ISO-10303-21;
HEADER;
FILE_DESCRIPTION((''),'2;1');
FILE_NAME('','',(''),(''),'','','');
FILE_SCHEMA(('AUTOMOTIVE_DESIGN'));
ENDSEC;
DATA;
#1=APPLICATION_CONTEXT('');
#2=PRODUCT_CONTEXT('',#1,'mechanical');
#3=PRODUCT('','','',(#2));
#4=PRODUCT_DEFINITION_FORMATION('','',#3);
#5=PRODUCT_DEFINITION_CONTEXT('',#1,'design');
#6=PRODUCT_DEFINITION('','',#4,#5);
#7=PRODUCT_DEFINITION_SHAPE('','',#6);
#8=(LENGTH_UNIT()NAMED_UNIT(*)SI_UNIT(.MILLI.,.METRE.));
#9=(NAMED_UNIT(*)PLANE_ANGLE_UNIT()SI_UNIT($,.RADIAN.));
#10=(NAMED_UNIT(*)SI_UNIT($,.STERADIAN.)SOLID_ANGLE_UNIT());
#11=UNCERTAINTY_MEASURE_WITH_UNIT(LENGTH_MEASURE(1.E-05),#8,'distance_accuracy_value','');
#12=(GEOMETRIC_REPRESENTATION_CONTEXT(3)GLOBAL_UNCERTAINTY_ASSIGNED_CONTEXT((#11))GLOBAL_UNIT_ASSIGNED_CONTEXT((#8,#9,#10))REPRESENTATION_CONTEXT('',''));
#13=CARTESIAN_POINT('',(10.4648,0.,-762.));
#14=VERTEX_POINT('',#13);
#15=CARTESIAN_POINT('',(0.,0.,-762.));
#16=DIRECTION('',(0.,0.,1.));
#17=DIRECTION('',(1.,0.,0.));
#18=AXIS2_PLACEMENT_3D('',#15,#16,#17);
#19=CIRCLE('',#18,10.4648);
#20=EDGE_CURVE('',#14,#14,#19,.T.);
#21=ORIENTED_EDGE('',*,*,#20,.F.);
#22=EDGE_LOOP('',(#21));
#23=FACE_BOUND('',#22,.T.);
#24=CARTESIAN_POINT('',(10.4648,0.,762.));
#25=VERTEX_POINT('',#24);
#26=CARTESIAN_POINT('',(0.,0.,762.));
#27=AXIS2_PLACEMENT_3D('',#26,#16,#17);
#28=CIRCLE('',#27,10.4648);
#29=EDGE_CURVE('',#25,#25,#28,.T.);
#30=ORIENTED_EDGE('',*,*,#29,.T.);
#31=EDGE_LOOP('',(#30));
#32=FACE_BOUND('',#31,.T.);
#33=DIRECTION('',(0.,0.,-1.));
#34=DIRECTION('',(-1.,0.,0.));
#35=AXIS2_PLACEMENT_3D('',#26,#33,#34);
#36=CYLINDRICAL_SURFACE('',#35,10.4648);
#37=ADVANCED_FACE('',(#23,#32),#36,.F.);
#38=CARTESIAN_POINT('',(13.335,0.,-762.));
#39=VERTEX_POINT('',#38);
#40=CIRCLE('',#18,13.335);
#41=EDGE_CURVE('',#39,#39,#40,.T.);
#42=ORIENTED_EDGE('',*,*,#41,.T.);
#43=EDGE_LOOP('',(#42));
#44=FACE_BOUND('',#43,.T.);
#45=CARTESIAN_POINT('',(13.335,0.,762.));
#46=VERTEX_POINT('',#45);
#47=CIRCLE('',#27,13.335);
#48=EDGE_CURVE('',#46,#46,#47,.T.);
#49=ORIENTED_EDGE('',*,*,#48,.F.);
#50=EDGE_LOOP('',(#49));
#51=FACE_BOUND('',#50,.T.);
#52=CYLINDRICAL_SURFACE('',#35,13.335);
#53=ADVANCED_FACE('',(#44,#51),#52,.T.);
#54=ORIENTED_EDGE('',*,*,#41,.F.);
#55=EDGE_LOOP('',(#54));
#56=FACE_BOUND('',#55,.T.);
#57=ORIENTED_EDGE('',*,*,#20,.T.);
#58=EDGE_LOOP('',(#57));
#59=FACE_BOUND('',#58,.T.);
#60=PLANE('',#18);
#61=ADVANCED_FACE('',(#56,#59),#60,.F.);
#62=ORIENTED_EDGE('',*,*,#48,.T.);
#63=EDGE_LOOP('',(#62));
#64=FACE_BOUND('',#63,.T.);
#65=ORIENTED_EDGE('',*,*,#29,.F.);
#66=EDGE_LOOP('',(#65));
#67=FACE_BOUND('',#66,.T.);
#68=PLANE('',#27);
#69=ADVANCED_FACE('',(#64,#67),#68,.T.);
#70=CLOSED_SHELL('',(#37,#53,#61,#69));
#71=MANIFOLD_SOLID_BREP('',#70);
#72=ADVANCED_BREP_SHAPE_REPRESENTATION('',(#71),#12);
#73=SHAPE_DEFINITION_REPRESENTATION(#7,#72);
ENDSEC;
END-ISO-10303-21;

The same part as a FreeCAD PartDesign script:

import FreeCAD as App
import Part
import Sketcher
from FreeCAD import Vector
Q = App.Units.Quantity

doc = App.newDocument("Part")
body = doc.addObject("PartDesign::Body", "Body")

# Sketch on XY plane
sketch1 = body.newObject("Sketcher::SketchObject", "Sketch")
sketch1.AttachmentSupport = (doc.getObject("XY_Plane"), [""])
sketch1.MapMode = "FlatFace"
sketch1.addGeometry(Part.Circle(Vector(0, 0, 0), Vector(0, 0, 1), 13), False)
sketch1.addGeometry(Part.Circle(Vector(0, 0, 0), Vector(0, 0, 1), 10), False)
sketch1.addConstraint(Sketcher.Constraint("Coincident", 0, 3, -1, 1))
sketch1.addConstraint(Sketcher.Constraint("Coincident", 1, 3, -1, 1))
sketch1.addConstraint(Sketcher.Constraint("Diameter", 0, Q("1.05 in")))
sketch1.addConstraint(Sketcher.Constraint("Diameter", 1, Q("0.824 in")))
pad1 = body.newObject("PartDesign::Pad", "Pad")
pad1.Profile = sketch1
pad1.Type = "TwoLengths"
pad1.Length = Q("30 in")
pad1.Length2 = Q("30 in")

doc.recompute()
